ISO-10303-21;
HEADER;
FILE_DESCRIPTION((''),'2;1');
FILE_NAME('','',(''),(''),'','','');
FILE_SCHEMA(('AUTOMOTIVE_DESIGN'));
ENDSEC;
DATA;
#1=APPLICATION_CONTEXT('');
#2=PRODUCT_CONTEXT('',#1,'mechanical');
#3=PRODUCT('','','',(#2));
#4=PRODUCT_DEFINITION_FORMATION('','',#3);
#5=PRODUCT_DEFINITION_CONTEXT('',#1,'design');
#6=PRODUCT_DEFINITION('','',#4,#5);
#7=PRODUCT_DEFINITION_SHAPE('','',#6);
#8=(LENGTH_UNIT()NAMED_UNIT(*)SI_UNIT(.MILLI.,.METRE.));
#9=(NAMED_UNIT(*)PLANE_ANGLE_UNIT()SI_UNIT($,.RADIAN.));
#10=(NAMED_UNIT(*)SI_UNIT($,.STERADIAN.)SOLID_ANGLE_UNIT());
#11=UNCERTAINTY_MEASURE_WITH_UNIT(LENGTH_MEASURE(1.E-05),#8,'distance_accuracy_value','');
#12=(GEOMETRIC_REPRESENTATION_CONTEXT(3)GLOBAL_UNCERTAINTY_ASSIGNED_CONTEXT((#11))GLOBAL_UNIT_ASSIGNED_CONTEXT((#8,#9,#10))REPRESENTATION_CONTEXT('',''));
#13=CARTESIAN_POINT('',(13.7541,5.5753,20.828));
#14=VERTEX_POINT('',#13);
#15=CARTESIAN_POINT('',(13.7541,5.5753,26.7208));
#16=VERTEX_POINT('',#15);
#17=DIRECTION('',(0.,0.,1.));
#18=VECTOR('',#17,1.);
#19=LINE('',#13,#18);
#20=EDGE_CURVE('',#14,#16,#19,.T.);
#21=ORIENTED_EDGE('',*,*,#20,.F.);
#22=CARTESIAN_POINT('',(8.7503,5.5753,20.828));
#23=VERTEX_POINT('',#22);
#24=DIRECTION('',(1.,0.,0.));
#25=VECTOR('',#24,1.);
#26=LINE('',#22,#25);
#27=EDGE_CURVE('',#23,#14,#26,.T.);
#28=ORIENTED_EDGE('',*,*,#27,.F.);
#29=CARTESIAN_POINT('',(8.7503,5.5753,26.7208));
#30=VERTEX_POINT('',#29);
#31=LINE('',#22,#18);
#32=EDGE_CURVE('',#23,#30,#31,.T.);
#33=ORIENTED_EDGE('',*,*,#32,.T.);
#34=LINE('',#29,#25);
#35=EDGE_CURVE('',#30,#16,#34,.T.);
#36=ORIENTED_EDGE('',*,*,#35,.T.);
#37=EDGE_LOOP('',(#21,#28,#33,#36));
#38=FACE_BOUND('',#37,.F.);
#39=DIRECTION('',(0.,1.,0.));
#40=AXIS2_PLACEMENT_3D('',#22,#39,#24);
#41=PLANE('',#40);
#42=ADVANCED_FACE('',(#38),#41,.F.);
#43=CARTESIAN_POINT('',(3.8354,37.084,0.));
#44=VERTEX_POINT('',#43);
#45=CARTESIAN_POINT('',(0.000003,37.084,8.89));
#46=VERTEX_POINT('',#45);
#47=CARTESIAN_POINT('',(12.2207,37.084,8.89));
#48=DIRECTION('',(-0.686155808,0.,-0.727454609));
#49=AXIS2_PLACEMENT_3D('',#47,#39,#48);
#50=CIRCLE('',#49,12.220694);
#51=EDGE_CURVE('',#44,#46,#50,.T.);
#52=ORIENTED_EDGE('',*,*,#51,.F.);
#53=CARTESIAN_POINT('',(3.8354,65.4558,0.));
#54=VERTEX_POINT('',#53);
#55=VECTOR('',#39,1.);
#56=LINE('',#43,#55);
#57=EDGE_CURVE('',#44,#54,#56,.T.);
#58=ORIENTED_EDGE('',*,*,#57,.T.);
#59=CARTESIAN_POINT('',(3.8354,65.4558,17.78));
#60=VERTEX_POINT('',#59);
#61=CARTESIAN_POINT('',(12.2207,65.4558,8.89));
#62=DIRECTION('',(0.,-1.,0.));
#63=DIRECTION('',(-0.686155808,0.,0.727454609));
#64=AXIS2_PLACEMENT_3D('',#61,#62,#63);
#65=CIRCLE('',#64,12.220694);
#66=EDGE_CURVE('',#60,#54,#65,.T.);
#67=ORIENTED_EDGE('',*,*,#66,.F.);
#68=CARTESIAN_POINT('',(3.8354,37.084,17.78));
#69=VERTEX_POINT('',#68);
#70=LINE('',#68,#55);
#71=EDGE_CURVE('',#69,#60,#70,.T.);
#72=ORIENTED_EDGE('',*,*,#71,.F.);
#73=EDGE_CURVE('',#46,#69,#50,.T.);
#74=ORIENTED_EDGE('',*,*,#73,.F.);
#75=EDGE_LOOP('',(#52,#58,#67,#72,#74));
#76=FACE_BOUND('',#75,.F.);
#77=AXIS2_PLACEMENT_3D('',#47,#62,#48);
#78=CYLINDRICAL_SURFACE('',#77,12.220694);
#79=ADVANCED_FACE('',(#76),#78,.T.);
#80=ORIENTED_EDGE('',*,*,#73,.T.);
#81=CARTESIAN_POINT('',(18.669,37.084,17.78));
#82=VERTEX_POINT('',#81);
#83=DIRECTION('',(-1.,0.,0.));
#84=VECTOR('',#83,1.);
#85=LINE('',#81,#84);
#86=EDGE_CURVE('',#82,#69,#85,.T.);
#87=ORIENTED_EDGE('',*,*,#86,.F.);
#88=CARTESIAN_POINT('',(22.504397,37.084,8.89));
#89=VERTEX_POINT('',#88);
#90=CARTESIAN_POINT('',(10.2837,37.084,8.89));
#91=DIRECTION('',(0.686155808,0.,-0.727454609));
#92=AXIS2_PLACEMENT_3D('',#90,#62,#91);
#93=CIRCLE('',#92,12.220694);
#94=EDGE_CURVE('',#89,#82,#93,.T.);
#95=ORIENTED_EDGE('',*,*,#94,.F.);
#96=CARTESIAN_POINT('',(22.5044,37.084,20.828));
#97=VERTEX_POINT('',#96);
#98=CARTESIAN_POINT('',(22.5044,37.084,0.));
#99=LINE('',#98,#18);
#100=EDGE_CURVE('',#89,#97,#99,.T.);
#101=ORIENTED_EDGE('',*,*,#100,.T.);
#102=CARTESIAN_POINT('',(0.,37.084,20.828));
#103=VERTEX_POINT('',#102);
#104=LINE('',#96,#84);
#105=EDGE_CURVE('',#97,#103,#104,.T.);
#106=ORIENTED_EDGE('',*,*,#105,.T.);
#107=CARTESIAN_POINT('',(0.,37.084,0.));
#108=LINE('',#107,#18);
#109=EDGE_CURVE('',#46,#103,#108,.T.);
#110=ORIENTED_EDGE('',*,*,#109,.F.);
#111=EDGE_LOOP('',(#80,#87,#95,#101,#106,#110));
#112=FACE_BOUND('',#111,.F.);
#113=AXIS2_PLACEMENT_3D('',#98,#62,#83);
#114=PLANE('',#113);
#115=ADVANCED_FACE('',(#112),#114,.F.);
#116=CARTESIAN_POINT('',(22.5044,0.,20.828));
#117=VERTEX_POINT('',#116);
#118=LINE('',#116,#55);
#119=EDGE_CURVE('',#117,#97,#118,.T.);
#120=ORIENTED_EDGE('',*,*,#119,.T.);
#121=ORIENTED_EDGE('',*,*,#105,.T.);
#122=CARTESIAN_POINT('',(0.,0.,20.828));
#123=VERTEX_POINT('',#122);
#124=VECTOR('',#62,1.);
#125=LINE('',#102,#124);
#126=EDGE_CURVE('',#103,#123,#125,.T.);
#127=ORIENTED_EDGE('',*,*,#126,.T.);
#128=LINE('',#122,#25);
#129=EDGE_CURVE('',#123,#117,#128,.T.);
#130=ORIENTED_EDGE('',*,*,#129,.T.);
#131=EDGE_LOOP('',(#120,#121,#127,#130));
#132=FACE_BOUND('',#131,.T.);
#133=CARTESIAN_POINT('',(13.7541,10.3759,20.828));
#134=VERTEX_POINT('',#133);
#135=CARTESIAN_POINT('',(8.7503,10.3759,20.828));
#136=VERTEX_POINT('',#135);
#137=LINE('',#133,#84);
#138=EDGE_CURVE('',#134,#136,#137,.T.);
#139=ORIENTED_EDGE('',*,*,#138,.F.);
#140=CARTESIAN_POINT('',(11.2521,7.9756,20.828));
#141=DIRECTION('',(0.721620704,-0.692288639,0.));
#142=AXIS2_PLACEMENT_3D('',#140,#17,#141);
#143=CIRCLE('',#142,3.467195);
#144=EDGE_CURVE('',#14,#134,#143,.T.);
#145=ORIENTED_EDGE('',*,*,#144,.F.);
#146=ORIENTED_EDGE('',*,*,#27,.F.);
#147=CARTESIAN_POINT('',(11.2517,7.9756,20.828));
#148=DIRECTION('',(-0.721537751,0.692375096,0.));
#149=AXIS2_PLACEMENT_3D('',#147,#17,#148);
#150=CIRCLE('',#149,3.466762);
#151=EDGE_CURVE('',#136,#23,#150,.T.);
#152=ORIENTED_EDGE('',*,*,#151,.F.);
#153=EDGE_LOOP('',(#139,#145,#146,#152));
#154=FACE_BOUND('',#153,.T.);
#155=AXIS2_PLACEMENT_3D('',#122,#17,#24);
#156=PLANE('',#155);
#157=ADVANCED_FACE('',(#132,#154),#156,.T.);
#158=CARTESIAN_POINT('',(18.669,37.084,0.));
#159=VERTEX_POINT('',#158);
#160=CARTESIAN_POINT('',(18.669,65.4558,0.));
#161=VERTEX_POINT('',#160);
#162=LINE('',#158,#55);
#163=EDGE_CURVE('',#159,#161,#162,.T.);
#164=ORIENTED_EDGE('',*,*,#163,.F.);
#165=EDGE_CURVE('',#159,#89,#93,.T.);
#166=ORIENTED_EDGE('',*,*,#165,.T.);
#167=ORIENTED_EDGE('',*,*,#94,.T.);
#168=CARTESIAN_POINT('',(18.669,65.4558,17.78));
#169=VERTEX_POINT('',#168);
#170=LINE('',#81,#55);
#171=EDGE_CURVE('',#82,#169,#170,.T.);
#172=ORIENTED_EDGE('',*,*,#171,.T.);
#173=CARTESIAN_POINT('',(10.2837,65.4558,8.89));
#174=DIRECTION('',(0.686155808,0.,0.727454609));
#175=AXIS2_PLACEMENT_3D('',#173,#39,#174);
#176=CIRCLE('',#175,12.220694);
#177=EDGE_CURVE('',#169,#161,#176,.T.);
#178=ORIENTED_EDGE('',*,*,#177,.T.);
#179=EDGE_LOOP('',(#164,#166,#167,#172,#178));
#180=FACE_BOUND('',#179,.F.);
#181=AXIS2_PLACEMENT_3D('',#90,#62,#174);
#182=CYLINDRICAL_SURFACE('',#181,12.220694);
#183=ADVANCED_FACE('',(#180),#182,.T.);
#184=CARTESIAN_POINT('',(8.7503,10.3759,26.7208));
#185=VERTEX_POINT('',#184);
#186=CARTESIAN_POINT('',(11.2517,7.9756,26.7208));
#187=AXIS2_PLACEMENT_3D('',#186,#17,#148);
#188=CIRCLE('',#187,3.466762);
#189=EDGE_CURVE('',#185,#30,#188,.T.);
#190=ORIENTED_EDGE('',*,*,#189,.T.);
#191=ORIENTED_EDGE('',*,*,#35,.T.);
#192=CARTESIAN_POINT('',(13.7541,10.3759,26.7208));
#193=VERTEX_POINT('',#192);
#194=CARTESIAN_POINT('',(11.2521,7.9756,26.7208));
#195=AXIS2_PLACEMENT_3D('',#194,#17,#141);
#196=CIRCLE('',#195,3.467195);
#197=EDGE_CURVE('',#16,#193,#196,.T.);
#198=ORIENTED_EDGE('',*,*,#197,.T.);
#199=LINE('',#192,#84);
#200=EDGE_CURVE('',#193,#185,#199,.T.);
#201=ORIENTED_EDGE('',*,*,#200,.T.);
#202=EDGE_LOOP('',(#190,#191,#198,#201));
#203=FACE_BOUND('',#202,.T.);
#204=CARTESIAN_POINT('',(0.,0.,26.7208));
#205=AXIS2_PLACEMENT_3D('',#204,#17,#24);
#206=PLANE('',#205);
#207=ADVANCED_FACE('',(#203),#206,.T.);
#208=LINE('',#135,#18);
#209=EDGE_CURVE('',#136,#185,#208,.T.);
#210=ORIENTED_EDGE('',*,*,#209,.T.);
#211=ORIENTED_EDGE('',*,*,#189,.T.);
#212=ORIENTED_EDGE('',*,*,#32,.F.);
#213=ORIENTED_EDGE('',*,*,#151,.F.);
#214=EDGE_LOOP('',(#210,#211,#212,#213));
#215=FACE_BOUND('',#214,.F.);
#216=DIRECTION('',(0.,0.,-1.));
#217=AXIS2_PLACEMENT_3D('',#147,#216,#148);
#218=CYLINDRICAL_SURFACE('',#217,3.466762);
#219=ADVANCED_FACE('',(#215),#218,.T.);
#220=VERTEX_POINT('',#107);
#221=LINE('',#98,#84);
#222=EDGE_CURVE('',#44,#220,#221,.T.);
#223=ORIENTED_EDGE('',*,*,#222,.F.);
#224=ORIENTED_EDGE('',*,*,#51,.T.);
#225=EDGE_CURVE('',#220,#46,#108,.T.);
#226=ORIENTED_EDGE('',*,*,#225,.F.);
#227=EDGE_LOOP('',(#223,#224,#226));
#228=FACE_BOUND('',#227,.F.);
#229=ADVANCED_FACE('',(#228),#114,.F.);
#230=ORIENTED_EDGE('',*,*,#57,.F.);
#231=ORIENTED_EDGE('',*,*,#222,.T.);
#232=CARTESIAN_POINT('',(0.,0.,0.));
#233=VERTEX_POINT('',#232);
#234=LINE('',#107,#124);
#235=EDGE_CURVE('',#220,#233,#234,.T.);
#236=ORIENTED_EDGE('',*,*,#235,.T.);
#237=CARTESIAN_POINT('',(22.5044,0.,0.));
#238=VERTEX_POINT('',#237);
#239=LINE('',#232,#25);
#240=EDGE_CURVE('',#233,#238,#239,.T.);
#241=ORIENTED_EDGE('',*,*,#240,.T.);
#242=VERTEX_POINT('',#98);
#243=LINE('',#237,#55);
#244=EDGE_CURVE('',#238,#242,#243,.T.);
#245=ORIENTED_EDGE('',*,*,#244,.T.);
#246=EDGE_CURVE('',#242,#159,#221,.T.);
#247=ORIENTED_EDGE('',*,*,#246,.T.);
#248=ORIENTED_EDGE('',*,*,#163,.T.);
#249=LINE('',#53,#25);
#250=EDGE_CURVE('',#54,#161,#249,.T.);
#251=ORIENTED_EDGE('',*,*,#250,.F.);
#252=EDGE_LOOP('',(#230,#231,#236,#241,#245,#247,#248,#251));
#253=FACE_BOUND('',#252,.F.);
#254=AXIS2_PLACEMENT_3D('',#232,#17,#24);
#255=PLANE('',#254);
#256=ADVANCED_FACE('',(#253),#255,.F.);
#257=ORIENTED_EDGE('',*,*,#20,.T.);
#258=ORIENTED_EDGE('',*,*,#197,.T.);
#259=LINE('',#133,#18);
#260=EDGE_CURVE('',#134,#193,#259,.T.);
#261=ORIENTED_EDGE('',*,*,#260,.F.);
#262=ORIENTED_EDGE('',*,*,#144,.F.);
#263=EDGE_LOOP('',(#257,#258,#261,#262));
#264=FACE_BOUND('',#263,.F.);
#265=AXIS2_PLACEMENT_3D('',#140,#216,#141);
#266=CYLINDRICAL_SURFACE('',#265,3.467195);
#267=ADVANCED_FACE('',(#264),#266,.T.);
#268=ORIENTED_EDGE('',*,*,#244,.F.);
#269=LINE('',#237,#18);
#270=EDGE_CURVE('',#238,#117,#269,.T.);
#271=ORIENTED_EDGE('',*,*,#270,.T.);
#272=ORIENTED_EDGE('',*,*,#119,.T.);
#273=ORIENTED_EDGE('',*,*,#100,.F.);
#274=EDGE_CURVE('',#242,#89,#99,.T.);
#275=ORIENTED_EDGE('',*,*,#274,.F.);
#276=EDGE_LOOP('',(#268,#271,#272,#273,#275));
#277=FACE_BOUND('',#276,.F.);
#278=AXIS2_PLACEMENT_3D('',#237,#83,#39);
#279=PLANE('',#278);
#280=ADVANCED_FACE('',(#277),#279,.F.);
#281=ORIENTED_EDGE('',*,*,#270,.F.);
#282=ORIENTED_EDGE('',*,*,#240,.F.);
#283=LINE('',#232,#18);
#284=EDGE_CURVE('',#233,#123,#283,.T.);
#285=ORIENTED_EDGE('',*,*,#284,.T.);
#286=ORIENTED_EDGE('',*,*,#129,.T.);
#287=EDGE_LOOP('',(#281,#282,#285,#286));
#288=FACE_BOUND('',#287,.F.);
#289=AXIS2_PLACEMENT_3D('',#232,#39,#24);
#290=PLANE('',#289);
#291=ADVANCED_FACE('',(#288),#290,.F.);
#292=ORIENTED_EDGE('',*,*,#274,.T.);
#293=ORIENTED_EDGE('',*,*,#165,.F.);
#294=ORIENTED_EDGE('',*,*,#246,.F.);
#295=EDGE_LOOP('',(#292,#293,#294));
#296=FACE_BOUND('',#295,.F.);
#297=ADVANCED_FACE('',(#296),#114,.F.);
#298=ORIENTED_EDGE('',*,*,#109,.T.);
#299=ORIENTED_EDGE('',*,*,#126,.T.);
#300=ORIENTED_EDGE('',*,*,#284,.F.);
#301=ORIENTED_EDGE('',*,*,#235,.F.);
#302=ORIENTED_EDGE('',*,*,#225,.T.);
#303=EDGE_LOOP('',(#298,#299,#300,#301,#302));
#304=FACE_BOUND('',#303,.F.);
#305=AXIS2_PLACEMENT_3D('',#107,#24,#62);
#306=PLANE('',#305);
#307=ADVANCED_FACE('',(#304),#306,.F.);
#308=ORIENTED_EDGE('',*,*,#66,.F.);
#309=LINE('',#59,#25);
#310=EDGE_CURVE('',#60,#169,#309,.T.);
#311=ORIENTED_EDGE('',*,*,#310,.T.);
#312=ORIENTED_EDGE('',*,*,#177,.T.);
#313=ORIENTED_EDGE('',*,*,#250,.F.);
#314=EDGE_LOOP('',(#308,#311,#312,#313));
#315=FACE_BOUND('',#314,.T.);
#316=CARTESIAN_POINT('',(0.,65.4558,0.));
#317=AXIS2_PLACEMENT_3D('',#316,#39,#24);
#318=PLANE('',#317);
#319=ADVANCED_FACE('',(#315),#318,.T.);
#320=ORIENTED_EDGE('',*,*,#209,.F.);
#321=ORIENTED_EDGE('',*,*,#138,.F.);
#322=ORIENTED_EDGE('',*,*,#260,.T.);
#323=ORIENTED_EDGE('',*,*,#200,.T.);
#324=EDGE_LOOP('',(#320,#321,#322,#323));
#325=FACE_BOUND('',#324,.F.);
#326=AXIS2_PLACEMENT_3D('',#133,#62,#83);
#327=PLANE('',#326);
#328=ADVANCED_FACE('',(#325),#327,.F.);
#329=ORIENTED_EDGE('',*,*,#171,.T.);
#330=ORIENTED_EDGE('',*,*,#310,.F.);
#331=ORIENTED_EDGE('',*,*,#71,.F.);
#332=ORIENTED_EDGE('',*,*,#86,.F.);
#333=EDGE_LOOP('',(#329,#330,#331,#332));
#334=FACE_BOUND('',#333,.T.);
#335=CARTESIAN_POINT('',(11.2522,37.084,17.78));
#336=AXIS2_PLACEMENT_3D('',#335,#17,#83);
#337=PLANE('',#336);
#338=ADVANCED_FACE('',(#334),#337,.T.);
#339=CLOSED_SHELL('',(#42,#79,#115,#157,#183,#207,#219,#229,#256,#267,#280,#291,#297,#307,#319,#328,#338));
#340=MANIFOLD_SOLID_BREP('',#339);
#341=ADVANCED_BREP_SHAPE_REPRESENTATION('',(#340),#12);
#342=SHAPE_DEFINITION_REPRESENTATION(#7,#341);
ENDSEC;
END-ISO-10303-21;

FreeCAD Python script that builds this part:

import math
import FreeCAD as App
import Part
import Sketcher
from FreeCAD import Vector
Q = App.Units.Quantity


def add_polygon(sketch, points):
    """Adds a closed chain of lines whose ends are joined by coincident constraints."""
    first, n = sketch.GeometryCount, len(points)
    for a, b in zip(points, points[1:] + points[:1]):
        sketch.addGeometry(Part.LineSegment(App.Vector(*a, 0), App.Vector(*b, 0)), False)
    for i in range(n):
        sketch.addConstraint(Sketcher.Constraint("Coincident", first + i, 2, first + (i + 1) % n, 1))

doc = App.newDocument("Part")
params = doc.addObject("Spreadsheet::Sheet", "Params")
for row, (alias, value) in enumerate([
    ("sketch1_height", "1.46 in"),
    ("sketch1_width", "0.886 in"),
    ("pad1_length", "0.82 in"),
    ("sketch2_width", "0.584 in"),
    ("pad2_length", "1.117 in"),
    ("sketch3_width", "0.197 in"),
    ("pad3_length", "0.232 in"),
], start=1):
    params.set(f"A{row}", alias)
    params.set(f"B{row}", "=" + value)
    params.setAlias(f"B{row}", alias)

body = doc.addObject("PartDesign::Body", "Body")

# Sketch on XY plane
sketch1 = doc.addObject("Sketcher::SketchObject", "Sketch")
body.addObject(sketch1)
sketch1.AttachmentSupport = (doc.XY_Plane, [""])
sketch1.MapMode = "FlatFace"
add_polygon(sketch1, [(0, 37.084), (0, 0), (22.5044, 0), (22.5044, 37.084)])  # lines 0-3
sketch1.addConstraint(Sketcher.Constraint("Vertical", 0))
sketch1.addConstraint(Sketcher.Constraint("Horizontal", 1))
sketch1.addConstraint(Sketcher.Constraint("Vertical", 2))
sketch1.addConstraint(Sketcher.Constraint("Horizontal", 3))
sketch1.addConstraint(Sketcher.Constraint("Coincident", 0, 2, -1, 1))
sketch1.addConstraint(Sketcher.Constraint("DistanceY", 0, 2, 0, 1, Q("1.46 in")))
sketch1.addConstraint(Sketcher.Constraint("DistanceX", 1, 1, 1, 2, Q("0.886 in")))
sketch1.setExpression("Constraints[9]", "Params.sketch1_height")
sketch1.setExpression("Constraints[10]", "Params.sketch1_width")
pad1 = doc.addObject("PartDesign::Pad", "Pad")
body.addObject(pad1)
pad1.Profile = sketch1
pad1.setExpression("Length", "Params.pad1_length")

# Sketch on XZ plane
sketch2 = doc.addObject("Sketcher::SketchObject", "Sketch001")
body.addObject(sketch2)
sketch2.AttachmentSupport = (doc.XZ_Plane, [""])
sketch2.MapMode = "FlatFace"
sketch2.AttachmentOffset = App.Placement(Vector(0, 0, -1.46 * 25.4), App.Rotation())
sketch2.addGeometry(Part.ArcOfCircle(Part.Circle(Vector(12.2207, 8.89, 0), Vector(0, 0, 1), 12.220694), math.radians(133.326573), math.radians(226.673427)), False)
sketch2.addGeometry(Part.LineSegment(Vector(3.8354, 17.78, 0), Vector(18.669, 17.78, 0)), False)
sketch2.addGeometry(Part.ArcOfCircle(Part.Circle(Vector(10.2837, 8.89, 0), Vector(0, 0, 1), 12.220694), math.radians(-46.673427), math.radians(46.673427)), False)
sketch2.addGeometry(Part.LineSegment(Vector(18.669, 0, 0), Vector(3.8354, 0, 0)), False)
sketch2.addConstraint(Sketcher.Constraint("Coincident", 0, 1, 1, 1))
sketch2.addConstraint(Sketcher.Constraint("Coincident", 1, 2, 2, 2))
sketch2.addConstraint(Sketcher.Constraint("Coincident", 2, 1, 3, 1))
sketch2.addConstraint(Sketcher.Constraint("Coincident", 3, 2, 0, 2))
sketch2.addConstraint(Sketcher.Constraint("Horizontal", 1))
sketch2.addConstraint(Sketcher.Constraint("Horizontal", 3))
sketch2.addConstraint(Sketcher.Constraint("Equal", 0, 2))
sketch2.addConstraint(Sketcher.Constraint("PointOnObject", 2, 1, -1))
sketch2.addConstraint(Sketcher.Constraint("Horizontal", 0, 3, 2, 3))
sketch2.addConstraint(Sketcher.Constraint("Vertical", 1, 2, 2, 1))
sketch2.addConstraint(Sketcher.Constraint("DistanceY", -1, 1, 0, 3, Q("0.35 in")))
sketch2.addConstraint(Sketcher.Constraint("DistanceX", 1, 1, 1, 2, Q("0.584 in")))
sketch2.addConstraint(Sketcher.Constraint("Radius", 0, 12.2207))
sketch2.addConstraint(Sketcher.Constraint("DistanceX", -1, 1, 0, 1, Q("0.151 in")))
sketch2.setExpression("Constraints[11]", "Params.sketch2_width")
pad2 = doc.addObject("PartDesign::Pad", "Pad001")
body.addObject(pad2)
pad2.Profile = sketch2
pad2.setExpression("Length", "Params.pad2_length")
pad2.Reversed = True

# Sketch on XY plane
sketch3 = doc.addObject("Sketcher::SketchObject", "Sketch002")
body.addObject(sketch3)
sketch3.AttachmentSupport = (doc.XY_Plane, [""])
sketch3.MapMode = "FlatFace"
sketch3.AttachmentOffset = App.Placement(Vector(0, 0, 0.82 * 25.4), App.Rotation())
sketch3.addGeometry(Part.ArcOfCircle(Part.Circle(Vector(11.2521, 7.9756, 0), Vector(0, 0, 1), 3.467195), math.radians(-43.811549), math.radians(43.811549)), False)
sketch3.addGeometry(Part.LineSegment(Vector(13.7541, 10.3759, 0), Vector(8.7503, 10.3759, 0)), False)
sketch3.addGeometry(Part.ArcOfCircle(Part.Circle(Vector(11.2517, 7.9756, 0), Vector(0, 0, 1), 3.466762), math.radians(136.181586), math.radians(223.818414)), False)
sketch3.addGeometry(Part.LineSegment(Vector(8.7503, 5.5753, 0), Vector(13.7541, 5.5753, 0)), False)
sketch3.addConstraint(Sketcher.Constraint("Coincident", 0, 2, 1, 1))
sketch3.addConstraint(Sketcher.Constraint("Coincident", 1, 2, 2, 1))
sketch3.addConstraint(Sketcher.Constraint("Coincident", 2, 2, 3, 1))
sketch3.addConstraint(Sketcher.Constraint("Coincident", 3, 2, 0, 1))
sketch3.addConstraint(Sketcher.Constraint("Horizontal", 1))
sketch3.addConstraint(Sketcher.Constraint("Horizontal", 3))
sketch3.addConstraint(Sketcher.Constraint("Horizontal", 0, 3, 2, 3))
sketch3.addConstraint(Sketcher.Constraint("Vertical", 1, 2, 2, 2))
sketch3.addConstraint(Sketcher.Constraint("DistanceX", 1, 2, 1, 1, Q("0.197 in")))
sketch3.addConstraint(Sketcher.Constraint("DistanceY", 2, 2, 1, 2, Q("0.189 in")))
sketch3.addConstraint(Sketcher.Constraint("Radius", 0, Q("0.1365 in")))
sketch3.addConstraint(Sketcher.Constraint("Radius", 2, Q("0.1364882 in")))
sketch3.addConstraint(Sketcher.Constraint("DistanceX", -1, 1, 0, 3, Q("0.443 in")))
sketch3.addConstraint(Sketcher.Constraint("DistanceY", -1, 1, 0, 3, Q("0.314 in")))
sketch3.setExpression("Constraints[8]", "Params.sketch3_width")
pad3 = doc.addObject("PartDesign::Pad", "Pad002")
body.addObject(pad3)
pad3.Profile = sketch3
pad3.setExpression("Length", "Params.pad3_length")

doc.recompute()
